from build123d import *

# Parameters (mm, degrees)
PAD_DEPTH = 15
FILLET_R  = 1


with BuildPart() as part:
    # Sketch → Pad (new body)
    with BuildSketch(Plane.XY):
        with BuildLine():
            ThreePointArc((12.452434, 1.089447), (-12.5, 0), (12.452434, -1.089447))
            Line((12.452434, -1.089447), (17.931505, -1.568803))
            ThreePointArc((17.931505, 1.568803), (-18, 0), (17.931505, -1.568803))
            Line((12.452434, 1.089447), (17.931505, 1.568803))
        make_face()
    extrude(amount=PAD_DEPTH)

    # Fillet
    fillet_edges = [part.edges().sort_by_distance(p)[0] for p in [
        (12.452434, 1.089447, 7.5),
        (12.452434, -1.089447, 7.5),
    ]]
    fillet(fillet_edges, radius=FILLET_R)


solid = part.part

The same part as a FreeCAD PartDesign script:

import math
import FreeCAD as App
import Part
import Sketcher

V = App.Vector
Q = App.Units.Quantity


def edges_at(feature, points):
    """Names of the edges that pass closest to the given points."""
    edges = feature.Shape.Edges
    near = lambda p: min(range(len(edges)), key=lambda i: edges[i].distToShape(Part.Vertex(*p))[0])
    return sorted({f"Edge{near(p) + 1}" for p in points})

doc = App.newDocument("Part")
body = doc.addObject("PartDesign::Body", "Body")

# Sketch on XY plane
sketch1 = body.newObject("Sketcher::SketchObject", "Sketch")
sketch1.AttachmentSupport = (doc.getObject("XY_Plane"), [""])
sketch1.MapMode = "FlatFace"
sketch1.addGeometry([
    Part.ArcOfCircle(Part.Circle(V(0, 0, 0), V(0, 0, 1), 12.5), math.radians(5), math.radians(355)),
    Part.LineSegment(V(12.5, 1.1, 0), V(17.9, 1.6, 0)),
    Part.ArcOfCircle(Part.Circle(V(0, 0, 0), V(0, 0, 1), 18), math.radians(5), math.radians(355)),
    Part.LineSegment(V(17.9, -1.6, 0), V(12.5, -1.1, 0)),
], False)
sketch1.addConstraint([
    Sketcher.Constraint("Coincident", 0, 1, 1, 1),
    Sketcher.Constraint("Coincident", 1, 2, 2, 1),
    Sketcher.Constraint("Coincident", 2, 2, 3, 1),
    Sketcher.Constraint("Coincident", 3, 2, 0, 2),
    Sketcher.Constraint("Coincident", 0, 3, -1, 1),
    Sketcher.Constraint("Coincident", 2, 3, -1, 1),
    Sketcher.Constraint("Vertical", 1, 2, 2, 2),
    Sketcher.Constraint("Vertical", 0, 1, 3, 2),
    Sketcher.Constraint("Radius", 2, 18.0),
    Sketcher.Constraint("Radius", 0, 12.5),
    Sketcher.Constraint("Angle", 1, Q("4.999994 deg")),
    Sketcher.Constraint("DistanceY", 2, 2, 0, 1, 2.65825),
])
pad1 = body.newObject("PartDesign::Pad", "Pad")
pad1.Profile = sketch1
pad1.Length = 15
doc.recompute()

fillet = body.newObject("PartDesign::Fillet", "Fillet")
fillet.Base = (pad1, edges_at(pad1, [(12.452, 1.089, 7.5), (12.452, -1.089, 7.5)]))
fillet.Radius = 1

doc.recompute()
